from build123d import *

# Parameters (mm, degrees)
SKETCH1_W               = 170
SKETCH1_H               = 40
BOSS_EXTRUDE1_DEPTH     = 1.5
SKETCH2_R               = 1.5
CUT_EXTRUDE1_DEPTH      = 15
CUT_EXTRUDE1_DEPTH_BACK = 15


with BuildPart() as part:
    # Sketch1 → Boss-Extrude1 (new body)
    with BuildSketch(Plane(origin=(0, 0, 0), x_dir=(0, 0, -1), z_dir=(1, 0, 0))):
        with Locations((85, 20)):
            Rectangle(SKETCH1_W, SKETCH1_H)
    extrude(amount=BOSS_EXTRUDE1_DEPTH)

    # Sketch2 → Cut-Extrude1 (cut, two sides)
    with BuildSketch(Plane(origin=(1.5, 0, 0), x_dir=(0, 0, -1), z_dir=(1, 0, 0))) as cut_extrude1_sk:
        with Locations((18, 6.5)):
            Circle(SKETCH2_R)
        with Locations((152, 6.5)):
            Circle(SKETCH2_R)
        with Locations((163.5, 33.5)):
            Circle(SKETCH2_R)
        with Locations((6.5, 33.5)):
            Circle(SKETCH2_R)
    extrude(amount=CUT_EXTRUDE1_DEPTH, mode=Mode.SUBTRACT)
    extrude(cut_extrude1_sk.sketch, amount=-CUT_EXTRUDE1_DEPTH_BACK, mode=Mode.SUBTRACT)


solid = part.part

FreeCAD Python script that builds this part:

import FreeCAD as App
import Part
import Sketcher

V = App.Vector
Q = App.Units.Quantity


def add_polygon(sketch, points):
    """Adds a closed chain of lines whose ends are joined by coincident constraints."""
    first, n = sketch.GeometryCount, len(points)
    for a, b in zip(points, points[1:] + points[:1]):
        sketch.addGeometry(Part.LineSegment(App.Vector(*a, 0), App.Vector(*b, 0)), False)
    for i in range(n):
        sketch.addConstraint(Sketcher.Constraint("Coincident", first + i, 2, first + (i + 1) % n, 1))

doc = App.newDocument("Part")
body = doc.addObject("PartDesign::Body", "Body")

# Sketch on YZ plane
sketch1 = body.newObject("Sketcher::SketchObject", "Sketch")
sketch1.AttachmentSupport = (doc.getObject("YZ_Plane"), [""])
sketch1.MapMode = "FlatFace"
add_polygon(sketch1, [(40, 0), (0, 0), (0, -170), (40, -170)])  # lines 0-3
sketch1.addConstraint([
    Sketcher.Constraint("Horizontal", 0),
    Sketcher.Constraint("Vertical", 1),
    Sketcher.Constraint("Horizontal", 2),
    Sketcher.Constraint("Vertical", 3),
    Sketcher.Constraint("Coincident", 0, 2, -1, 1),
    Sketcher.Constraint("DistanceX", 0, 2, 0, 1, Q("40 mm")),
    Sketcher.Constraint("DistanceY", 1, 2, 1, 1, Q("170 mm")),
])
pad1 = body.newObject("PartDesign::Pad", "Pad")
pad1.Profile = sketch1
pad1.Length = 1.5

# Sketch on YZ plane
sketch2 = body.newObject("Sketcher::SketchObject", "Sketch001")
sketch2.AttachmentSupport = (doc.getObject("YZ_Plane"), [""])
sketch2.MapMode = "FlatFace"
sketch2.AttachmentOffset = App.Placement(V(0, 0, 1.5), App.Rotation())
sketch2.addGeometry([
    Part.Circle(V(6.5, -18, 0), V(0, 0, 1), 1.5),
    Part.Circle(V(6.5, -152, 0), V(0, 0, 1), 1.5),
    Part.Circle(V(33.5, -163.5, 0), V(0, 0, 1), 1.5),
    Part.Circle(V(33.5, -6.5, 0), V(0, 0, 1), 1.5),
], False)
sketch2.addConstraint([
    Sketcher.Constraint("Equal", 0, 1),
    Sketcher.Constraint("Equal", 1, 2),
    Sketcher.Constraint("Equal", 2, 3),
    Sketcher.Constraint("Vertical", 0, 3, 1, 3),
    Sketcher.Constraint("Vertical", 2, 3, 3, 3),
    Sketcher.Constraint("Diameter", 0, Q("3 mm")),
    Sketcher.Constraint("DistanceY", 0, 3, -1, 1, Q("18 mm")),
    Sketcher.Constraint("DistanceY", 1, 3, -1, 1, Q("152 mm")),
    Sketcher.Constraint("DistanceX", 1, 3, 2, 3, Q("27 mm")),
    Sketcher.Constraint("DistanceY", 2, 3, 3, 3, Q("157 mm")),
    Sketcher.Constraint("DistanceX", -1, 1, 0, 3, Q("6.5 mm")),
    Sketcher.Constraint("DistanceY", 2, 3, -1, 1, Q("163.5 mm")),
])
pocket1 = body.newObject("PartDesign::Pocket", "Pocket")
pocket1.Profile = sketch2
pocket1.Type = "ThroughAll"
pocket1.Midplane = True

doc.recompute()
